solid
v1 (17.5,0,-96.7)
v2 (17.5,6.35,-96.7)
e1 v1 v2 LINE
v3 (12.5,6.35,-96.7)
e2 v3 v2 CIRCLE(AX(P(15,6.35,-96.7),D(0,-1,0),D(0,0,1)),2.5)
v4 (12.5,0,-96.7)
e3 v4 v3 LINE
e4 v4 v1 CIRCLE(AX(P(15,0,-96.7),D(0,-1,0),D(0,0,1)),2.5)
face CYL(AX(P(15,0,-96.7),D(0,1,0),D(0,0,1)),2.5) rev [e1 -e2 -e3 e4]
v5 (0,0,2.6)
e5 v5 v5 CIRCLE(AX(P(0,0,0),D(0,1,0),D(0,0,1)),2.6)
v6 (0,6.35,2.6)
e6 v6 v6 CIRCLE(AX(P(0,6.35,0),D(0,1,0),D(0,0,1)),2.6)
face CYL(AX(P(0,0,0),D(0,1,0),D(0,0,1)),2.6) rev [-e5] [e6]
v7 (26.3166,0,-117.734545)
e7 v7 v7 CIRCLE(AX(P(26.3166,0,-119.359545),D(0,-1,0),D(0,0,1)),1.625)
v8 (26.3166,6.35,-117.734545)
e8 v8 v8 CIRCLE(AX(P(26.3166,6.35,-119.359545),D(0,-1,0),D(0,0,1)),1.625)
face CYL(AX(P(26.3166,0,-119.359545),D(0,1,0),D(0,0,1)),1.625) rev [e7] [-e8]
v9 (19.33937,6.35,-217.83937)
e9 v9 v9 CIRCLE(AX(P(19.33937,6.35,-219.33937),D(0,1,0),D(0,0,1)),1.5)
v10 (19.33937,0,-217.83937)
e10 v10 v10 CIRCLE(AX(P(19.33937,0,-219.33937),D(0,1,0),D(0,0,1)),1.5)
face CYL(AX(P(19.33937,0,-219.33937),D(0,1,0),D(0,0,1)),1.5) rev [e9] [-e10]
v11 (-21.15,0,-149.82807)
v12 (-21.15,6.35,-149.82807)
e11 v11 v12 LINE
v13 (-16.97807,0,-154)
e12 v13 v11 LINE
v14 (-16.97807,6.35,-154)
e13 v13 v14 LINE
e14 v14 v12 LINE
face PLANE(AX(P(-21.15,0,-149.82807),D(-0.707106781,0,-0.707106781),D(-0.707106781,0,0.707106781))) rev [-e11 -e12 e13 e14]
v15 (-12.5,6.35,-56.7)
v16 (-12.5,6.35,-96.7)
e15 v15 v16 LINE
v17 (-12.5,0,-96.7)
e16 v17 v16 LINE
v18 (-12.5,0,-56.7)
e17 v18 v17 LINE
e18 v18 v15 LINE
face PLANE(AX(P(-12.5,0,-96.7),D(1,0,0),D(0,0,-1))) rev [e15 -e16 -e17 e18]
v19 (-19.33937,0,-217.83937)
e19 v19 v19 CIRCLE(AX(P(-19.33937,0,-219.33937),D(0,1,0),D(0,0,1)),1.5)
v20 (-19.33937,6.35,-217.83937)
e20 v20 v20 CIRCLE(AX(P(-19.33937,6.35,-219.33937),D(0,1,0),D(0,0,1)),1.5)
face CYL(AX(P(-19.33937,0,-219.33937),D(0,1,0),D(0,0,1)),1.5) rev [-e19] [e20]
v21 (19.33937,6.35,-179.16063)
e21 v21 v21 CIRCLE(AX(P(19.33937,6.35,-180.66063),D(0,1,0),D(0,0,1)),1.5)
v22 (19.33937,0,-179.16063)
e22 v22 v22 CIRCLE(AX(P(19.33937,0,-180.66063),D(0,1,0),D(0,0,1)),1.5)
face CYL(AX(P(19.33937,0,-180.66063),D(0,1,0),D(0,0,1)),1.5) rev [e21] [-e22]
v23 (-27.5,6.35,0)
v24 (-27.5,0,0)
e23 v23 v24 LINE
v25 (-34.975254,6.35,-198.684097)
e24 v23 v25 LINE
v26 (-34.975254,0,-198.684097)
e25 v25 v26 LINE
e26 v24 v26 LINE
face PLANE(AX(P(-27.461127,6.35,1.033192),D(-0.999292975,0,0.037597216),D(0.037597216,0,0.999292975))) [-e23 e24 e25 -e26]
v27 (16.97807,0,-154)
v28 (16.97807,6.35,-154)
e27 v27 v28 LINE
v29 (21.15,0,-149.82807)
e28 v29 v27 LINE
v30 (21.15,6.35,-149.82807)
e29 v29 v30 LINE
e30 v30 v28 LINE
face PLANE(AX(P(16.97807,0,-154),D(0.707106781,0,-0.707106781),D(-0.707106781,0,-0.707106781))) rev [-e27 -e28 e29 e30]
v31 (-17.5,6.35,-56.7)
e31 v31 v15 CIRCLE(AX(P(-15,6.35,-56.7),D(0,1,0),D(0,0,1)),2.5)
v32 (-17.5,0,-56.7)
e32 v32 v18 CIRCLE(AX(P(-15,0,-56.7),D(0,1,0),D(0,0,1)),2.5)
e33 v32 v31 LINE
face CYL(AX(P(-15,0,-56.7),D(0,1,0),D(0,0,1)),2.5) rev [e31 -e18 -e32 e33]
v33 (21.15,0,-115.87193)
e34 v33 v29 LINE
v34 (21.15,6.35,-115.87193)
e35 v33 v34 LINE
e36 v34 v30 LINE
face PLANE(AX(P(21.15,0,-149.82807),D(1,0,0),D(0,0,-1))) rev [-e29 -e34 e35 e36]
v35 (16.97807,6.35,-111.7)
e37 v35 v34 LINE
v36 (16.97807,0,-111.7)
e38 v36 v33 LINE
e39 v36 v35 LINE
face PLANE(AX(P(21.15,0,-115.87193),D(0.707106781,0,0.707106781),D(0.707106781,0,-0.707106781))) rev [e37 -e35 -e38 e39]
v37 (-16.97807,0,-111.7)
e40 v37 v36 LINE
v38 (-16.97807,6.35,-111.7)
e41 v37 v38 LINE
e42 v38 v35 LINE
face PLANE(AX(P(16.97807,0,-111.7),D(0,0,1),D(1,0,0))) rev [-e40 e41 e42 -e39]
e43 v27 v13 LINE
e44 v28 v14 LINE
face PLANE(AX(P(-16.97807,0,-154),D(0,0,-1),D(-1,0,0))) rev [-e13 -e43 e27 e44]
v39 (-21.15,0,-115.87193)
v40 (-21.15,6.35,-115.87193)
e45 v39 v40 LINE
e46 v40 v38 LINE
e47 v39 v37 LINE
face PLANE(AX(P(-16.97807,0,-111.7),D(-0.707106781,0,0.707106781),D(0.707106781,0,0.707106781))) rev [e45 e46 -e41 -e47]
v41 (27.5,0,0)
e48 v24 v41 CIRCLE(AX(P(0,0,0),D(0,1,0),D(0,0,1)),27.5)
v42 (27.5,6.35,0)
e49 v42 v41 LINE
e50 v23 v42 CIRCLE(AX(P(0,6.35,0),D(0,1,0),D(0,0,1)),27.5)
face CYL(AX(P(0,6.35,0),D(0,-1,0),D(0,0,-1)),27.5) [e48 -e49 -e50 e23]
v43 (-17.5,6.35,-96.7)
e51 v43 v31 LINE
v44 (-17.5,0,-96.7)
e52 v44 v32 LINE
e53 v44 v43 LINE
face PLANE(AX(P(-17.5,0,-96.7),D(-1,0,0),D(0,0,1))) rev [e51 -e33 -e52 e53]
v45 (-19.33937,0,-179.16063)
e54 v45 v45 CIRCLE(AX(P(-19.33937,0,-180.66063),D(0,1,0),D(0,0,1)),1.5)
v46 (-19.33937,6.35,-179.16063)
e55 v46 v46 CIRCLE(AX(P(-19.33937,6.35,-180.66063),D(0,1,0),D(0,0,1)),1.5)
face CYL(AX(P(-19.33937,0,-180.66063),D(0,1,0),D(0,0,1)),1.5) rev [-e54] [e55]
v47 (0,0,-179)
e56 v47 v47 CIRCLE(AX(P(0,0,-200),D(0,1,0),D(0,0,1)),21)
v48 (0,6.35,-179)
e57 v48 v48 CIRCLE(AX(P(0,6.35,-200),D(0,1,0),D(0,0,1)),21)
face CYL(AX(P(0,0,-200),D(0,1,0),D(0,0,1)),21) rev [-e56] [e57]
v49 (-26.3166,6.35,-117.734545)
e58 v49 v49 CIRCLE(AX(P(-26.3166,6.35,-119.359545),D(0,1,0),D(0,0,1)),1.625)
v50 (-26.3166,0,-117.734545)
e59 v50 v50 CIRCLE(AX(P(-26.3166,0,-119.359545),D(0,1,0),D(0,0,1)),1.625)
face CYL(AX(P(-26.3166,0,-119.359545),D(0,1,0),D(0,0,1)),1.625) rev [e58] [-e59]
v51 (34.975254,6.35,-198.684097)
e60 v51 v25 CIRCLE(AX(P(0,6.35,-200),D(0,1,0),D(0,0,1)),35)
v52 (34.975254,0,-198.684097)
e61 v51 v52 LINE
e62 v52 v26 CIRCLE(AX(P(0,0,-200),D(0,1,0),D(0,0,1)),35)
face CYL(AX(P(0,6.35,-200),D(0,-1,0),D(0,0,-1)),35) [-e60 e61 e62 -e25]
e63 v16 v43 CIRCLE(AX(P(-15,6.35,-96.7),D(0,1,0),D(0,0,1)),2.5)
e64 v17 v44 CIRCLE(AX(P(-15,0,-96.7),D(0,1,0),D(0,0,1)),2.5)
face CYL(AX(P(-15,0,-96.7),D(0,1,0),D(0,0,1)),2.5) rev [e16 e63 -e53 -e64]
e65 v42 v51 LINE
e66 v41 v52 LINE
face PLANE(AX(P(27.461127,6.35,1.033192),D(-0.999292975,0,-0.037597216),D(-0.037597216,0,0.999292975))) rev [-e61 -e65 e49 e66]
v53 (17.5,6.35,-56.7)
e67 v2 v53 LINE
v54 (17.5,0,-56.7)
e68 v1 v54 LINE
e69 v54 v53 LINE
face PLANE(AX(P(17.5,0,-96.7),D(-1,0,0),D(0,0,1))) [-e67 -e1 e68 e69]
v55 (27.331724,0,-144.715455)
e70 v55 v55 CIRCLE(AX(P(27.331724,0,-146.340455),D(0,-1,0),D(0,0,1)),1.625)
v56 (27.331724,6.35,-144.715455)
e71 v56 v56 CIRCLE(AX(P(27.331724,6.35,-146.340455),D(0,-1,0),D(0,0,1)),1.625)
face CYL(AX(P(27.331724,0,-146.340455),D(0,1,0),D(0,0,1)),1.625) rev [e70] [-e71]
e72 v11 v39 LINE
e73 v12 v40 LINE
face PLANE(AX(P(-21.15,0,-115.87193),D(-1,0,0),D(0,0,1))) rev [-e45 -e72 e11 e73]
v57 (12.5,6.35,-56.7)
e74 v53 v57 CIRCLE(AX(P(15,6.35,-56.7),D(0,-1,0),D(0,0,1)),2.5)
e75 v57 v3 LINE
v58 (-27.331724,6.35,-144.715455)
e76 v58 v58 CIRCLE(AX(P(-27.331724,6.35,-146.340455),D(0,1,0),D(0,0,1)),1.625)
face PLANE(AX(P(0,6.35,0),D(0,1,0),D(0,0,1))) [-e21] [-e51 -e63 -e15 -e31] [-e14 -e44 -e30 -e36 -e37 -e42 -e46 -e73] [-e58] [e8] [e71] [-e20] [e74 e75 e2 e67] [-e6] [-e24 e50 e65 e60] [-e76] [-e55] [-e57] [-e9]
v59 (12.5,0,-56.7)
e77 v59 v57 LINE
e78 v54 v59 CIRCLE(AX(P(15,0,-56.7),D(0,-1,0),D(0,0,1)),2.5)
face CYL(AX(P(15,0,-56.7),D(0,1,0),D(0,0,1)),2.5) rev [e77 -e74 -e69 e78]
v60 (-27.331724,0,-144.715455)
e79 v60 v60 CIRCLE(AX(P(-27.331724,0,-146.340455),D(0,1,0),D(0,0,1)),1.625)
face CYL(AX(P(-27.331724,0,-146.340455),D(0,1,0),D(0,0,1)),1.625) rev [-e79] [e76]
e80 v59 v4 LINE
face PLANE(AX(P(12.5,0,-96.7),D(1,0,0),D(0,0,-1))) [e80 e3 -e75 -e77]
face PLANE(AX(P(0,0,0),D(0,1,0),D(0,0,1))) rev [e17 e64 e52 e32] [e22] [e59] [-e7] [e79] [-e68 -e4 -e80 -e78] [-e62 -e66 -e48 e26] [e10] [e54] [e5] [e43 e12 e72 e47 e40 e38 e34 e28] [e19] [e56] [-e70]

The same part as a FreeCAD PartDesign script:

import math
import FreeCAD as App
import Part
import Sketcher

V = App.Vector


def add_polygon(sketch, points):
    """Adds a closed chain of lines whose ends are joined by coincident constraints."""
    first, n = sketch.GeometryCount, len(points)
    for a, b in zip(points, points[1:] + points[:1]):
        sketch.addGeometry(Part.LineSegment(App.Vector(*a, 0), App.Vector(*b, 0)), False)
    for i in range(n):
        sketch.addConstraint(Sketcher.Constraint("Coincident", first + i, 2, first + (i + 1) % n, 1))

doc = App.newDocument("Part")
params = doc.addObject("Spreadsheet::Sheet", "Params")
for row, (alias, value) in enumerate([
    ("sketch1_radius", "35 mm"),
    ("sketch1_radius2", "27.5 mm"),
    ("pad1_length", "6.35 mm"),
    ("sketch2_diameter", "5.2 mm"),
    ("sketch3_diameter", "42 mm"),
    ("sketch4_diameter", "3 mm"),
    ("sketch5_length", "5.9 mm"),
    ("sketch6_diameter", "3.25 mm"),
    ("sketch7_radius", "2.5 mm"),
    ("sketch7_height", "40 mm"),
], start=1):
    params.set(f"A{row}", alias)
    params.set(f"B{row}", "=" + value)
    params.setAlias(f"B{row}", alias)

body = doc.addObject("PartDesign::Body", "Body")

# Sketch on XZ plane
sketch1 = body.newObject("Sketcher::SketchObject", "Sketch")
sketch1.AttachmentSupport = (doc.getObject("XZ_Plane"), [""])
sketch1.MapMode = "FlatFace"
sketch1.addGeometry([
    Part.LineSegment(V(28, 0, 0), V(35, -199, 0)),
    Part.ArcOfCircle(Part.Circle(V(0, -200, 0), V(0, 0, 1), 35), math.radians(178), math.radians(362)),
    Part.LineSegment(V(-35, -199, 0), V(-28, 0, 0)),
    Part.ArcOfCircle(Part.Circle(V(0, 0, 0), V(0, 0, 1), 28), math.radians(0), math.radians(180)),
], False)
sketch1.addConstraint([
    Sketcher.Constraint("Tangent", 0, 2, 1, 2),
    Sketcher.Constraint("Tangent", 1, 1, 2, 1),
    Sketcher.Constraint("Coincident", 2, 2, 3, 2),
    Sketcher.Constraint("Coincident", 3, 1, 0, 1),
    Sketcher.Constraint("Coincident", 3, 3, -1, 1),
    Sketcher.Constraint("PointOnObject", 1, 3, -2),
    Sketcher.Constraint("PointOnObject", 2, 2, -1),
    Sketcher.Constraint("PointOnObject", 3, 1, -1),
    Sketcher.Constraint("Radius", 1, 35.0),
    Sketcher.Constraint("Radius", 3, 27.5),
    Sketcher.Constraint("DistanceY", 1, 3, -1, 1, 200.0),
])
sketch1.setExpression("Constraints[8]", "Params.sketch1_radius")
sketch1.setExpression("Constraints[9]", "Params.sketch1_radius2")
pad1 = body.newObject("PartDesign::Pad", "Pad")
pad1.Profile = sketch1
pad1.setExpression("Length", "Params.pad1_length")
pad1.Reversed = True

# Sketch on XZ plane
sketch2 = body.newObject("Sketcher::SketchObject", "Sketch001")
sketch2.AttachmentSupport = (doc.getObject("XZ_Plane"), [""])
sketch2.MapMode = "FlatFace"
sketch2.AttachmentOffset = App.Placement(V(0, 0, -6.35), App.Rotation())
sketch2.addGeometry(Part.Circle(V(0, 0, 0), V(0, 0, 1), 2.6), False)
sketch2.addConstraint([
    Sketcher.Constraint("Coincident", 0, 3, -1, 1),
    Sketcher.Constraint("Diameter", 0, 5.2),
])
sketch2.setExpression("Constraints[1]", "Params.sketch2_diameter")
pocket1 = body.newObject("PartDesign::Pocket", "Pocket")
pocket1.Profile = sketch2
pocket1.Type = "ThroughAll"
pocket1.Reversed = True

# Sketch on XZ plane
sketch3 = body.newObject("Sketcher::SketchObject", "Sketch002")
sketch3.AttachmentSupport = (doc.getObject("XZ_Plane"), [""])
sketch3.MapMode = "FlatFace"
sketch3.AttachmentOffset = App.Placement(V(0, 0, -6.35), App.Rotation())
sketch3.addGeometry(Part.Circle(V(0, -200, 0), V(0, 0, 1), 21), False)
sketch3.addConstraint([
    Sketcher.Constraint("PointOnObject", 0, 3, -2),
    Sketcher.Constraint("Diameter", 0, 42.0),
    Sketcher.Constraint("DistanceY", 0, 3, -1, 1, 200.0),
])
sketch3.setExpression("Constraints[1]", "Params.sketch3_diameter")
pocket2 = body.newObject("PartDesign::Pocket", "Pocket001")
pocket2.Profile = sketch3
pocket2.Type = "ThroughAll"
pocket2.Reversed = True

# Sketch on XZ plane
sketch4 = body.newObject("Sketcher::SketchObject", "Sketch003")
sketch4.AttachmentSupport = (doc.getObject("XZ_Plane"), [""])
sketch4.MapMode = "FlatFace"
sketch4.AttachmentOffset = App.Placement(V(0, 0, -6.35), App.Rotation())
sketch4.addGeometry([
    Part.Circle(V(-19.3, -219.3, 0), V(0, 0, 1), 1.5),
    Part.Circle(V(19.3, -219.3, 0), V(0, 0, 1), 1.5),
    Part.Circle(V(19.3, -180.7, 0), V(0, 0, 1), 1.5),
    Part.Circle(V(-19.3, -180.7, 0), V(0, 0, 1), 1.5),
], False)
sketch4.addConstraint([
    Sketcher.Constraint("Equal", 0, 1),
    Sketcher.Constraint("Equal", 1, 2),
    Sketcher.Constraint("Equal", 2, 3),
    Sketcher.Constraint("Symmetric", 0, 3, 1, 3, -2),
    Sketcher.Constraint("Symmetric", 2, 3, 3, 3, -2),
    Sketcher.Constraint("Vertical", 1, 3, 2, 3),
    Sketcher.Constraint("Diameter", 0, 3.0),
    Sketcher.Constraint("DistanceX", 0, 3, -1, 1, 19.33937),
    Sketcher.Constraint("DistanceY", 0, 3, -1, 1, 219.33937),
    Sketcher.Constraint("DistanceY", 2, 3, -1, 1, 180.66063),
])
sketch4.setExpression("Constraints[6]", "Params.sketch4_diameter")
pocket3 = body.newObject("PartDesign::Pocket", "Pocket002")
pocket3.Profile = sketch4
pocket3.Type = "ThroughAll"
pocket3.Reversed = True

# Sketch on XZ plane
sketch5 = body.newObject("Sketcher::SketchObject", "Sketch004")
sketch5.AttachmentSupport = (doc.getObject("XZ_Plane"), [""])
sketch5.MapMode = "FlatFace"
sketch5.AttachmentOffset = App.Placement(V(0, 0, -6.35), App.Rotation())
add_polygon(sketch5, [(21, -116), (21, -150), (17, -154), (-17, -154), (-21, -150), (-21, -116), (-17, -112), (17, -112)])  # lines 0-7
sketch5.addConstraint([
    Sketcher.Constraint("Vertical", 0),
    Sketcher.Constraint("Horizontal", 2),
    Sketcher.Constraint("Vertical", 4),
    Sketcher.Constraint("Horizontal", 6),
    Sketcher.Constraint("Symmetric", 0, 2, 3, 2, -2),
    Sketcher.Constraint("Perpendicular", 1, 3),
    Sketcher.Constraint("Perpendicular", 3, 5),
    Sketcher.Constraint("Perpendicular", 5, 7),
    Sketcher.Constraint("Horizontal", 4, 2, 7, 2),
    Sketcher.Constraint("Vertical", 2, 2, 5, 2),
    Sketcher.Constraint("Vertical", 1, 2, 6, 2),
    Sketcher.Constraint("Equal", 6, 0),
    Sketcher.Constraint("DistanceY", 1, 2, -1, 1, 154.0),
    Sketcher.Constraint("Distance", 1, 5.9),
    Sketcher.Constraint("DistanceY", 5, 2, -1, 1, 111.7),
])
sketch5.setExpression("Constraints[21]", "Params.sketch5_length")
pocket4 = body.newObject("PartDesign::Pocket", "Pocket003")
pocket4.Profile = sketch5
pocket4.Type = "ThroughAll"
pocket4.Reversed = True

# Sketch on XZ plane
sketch6 = body.newObject("Sketcher::SketchObject", "Sketch005")
sketch6.AttachmentSupport = (doc.getObject("XZ_Plane"), [""])
sketch6.MapMode = "FlatFace"
sketch6.AttachmentOffset = App.Placement(V(0, 0, -6.35), App.Rotation())
sketch6.addGeometry([
    Part.Circle(V(-27.3, -146.3, 0), V(0, 0, 1), 1.6),
    Part.Circle(V(-26.3, -119.4, 0), V(0, 0, 1), 1.6),
], False)
sketch6.addConstraint([
    Sketcher.Constraint("Equal", 0, 1),
    Sketcher.Constraint("Diameter", 0, 3.25),
    Sketcher.Constraint("DistanceX", 1, 3, -1, 1, 26.3166),
    Sketcher.Constraint("DistanceY", 0, 3, 1, 3, 26.98091),
    Sketcher.Constraint("DistanceX", 0, 3, -1, 1, 27.331724),
    Sketcher.Constraint("DistanceY", 0, 3, -1, 1, 146.340455),
])
sketch6.setExpression("Constraints[1]", "Params.sketch6_diameter")
pocket5 = body.newObject("PartDesign::Pocket", "Pocket004")
pocket5.Profile = sketch6
pocket5.Type = "ThroughAll"
pocket5.Reversed = True
doc.recompute()

mirrored = body.newObject("PartDesign::Mirrored", "Mirrored")
mirrored.Originals = [pocket5]
mirrored.MirrorPlane = (doc.getObject("YZ_Plane"), [""])
body.Tip = mirrored

# Sketch on XZ plane
sketch7 = body.newObject("Sketcher::SketchObject", "Sketch006")
sketch7.AttachmentSupport = (doc.getObject("XZ_Plane"), [""])
sketch7.MapMode = "FlatFace"
sketch7.AttachmentOffset = App.Placement(V(0, 0, -6.35), App.Rotation())
sketch7.addGeometry([
    Part.LineSegment(V(-12.5, -56.7, 0), V(-12.5, -96.7, 0)),
    Part.ArcOfCircle(Part.Circle(V(-15, -96.7, 0), V(0, 0, 1), 2.5), math.radians(180), math.radians(360)),
    Part.LineSegment(V(-17.5, -96.7, 0), V(-17.5, -56.7, 0)),
    Part.ArcOfCircle(Part.Circle(V(-15, -56.7, 0), V(0, 0, 1), 2.5), math.radians(0), math.radians(180)),
], False)
sketch7.addConstraint([
    Sketcher.Constraint("Tangent", 0, 2, 1, 2),
    Sketcher.Constraint("Tangent", 1, 1, 2, 1),
    Sketcher.Constraint("Tangent", 2, 2, 3, 2),
    Sketcher.Constraint("Tangent", 3, 1, 0, 1),
    Sketcher.Constraint("Vertical", 0),
    Sketcher.Constraint("Vertical", 2),
    Sketcher.Constraint("Radius", 1, 2.5),
    Sketcher.Constraint("DistanceY", 0, 2, 0, 1, 40.0),
    Sketcher.Constraint("DistanceX", 1, 3, -1, 1, 15.0),
    Sketcher.Constraint("DistanceY", 1, 3, -1, 1, 96.7),
])
sketch7.setExpression("Constraints[6]", "Params.sketch7_radius")
sketch7.setExpression("Constraints[7]", "Params.sketch7_height")
pocket6 = body.newObject("PartDesign::Pocket", "Pocket005")
pocket6.Profile = sketch7
pocket6.Type = "ThroughAll"
pocket6.Reversed = True
doc.recompute()

mirrored2 = body.newObject("PartDesign::Mirrored", "Mirrored001")
mirrored2.Originals = [pocket6]
mirrored2.MirrorPlane = (doc.getObject("YZ_Plane"), [""])
body.Tip = mirrored2

doc.recompute()
